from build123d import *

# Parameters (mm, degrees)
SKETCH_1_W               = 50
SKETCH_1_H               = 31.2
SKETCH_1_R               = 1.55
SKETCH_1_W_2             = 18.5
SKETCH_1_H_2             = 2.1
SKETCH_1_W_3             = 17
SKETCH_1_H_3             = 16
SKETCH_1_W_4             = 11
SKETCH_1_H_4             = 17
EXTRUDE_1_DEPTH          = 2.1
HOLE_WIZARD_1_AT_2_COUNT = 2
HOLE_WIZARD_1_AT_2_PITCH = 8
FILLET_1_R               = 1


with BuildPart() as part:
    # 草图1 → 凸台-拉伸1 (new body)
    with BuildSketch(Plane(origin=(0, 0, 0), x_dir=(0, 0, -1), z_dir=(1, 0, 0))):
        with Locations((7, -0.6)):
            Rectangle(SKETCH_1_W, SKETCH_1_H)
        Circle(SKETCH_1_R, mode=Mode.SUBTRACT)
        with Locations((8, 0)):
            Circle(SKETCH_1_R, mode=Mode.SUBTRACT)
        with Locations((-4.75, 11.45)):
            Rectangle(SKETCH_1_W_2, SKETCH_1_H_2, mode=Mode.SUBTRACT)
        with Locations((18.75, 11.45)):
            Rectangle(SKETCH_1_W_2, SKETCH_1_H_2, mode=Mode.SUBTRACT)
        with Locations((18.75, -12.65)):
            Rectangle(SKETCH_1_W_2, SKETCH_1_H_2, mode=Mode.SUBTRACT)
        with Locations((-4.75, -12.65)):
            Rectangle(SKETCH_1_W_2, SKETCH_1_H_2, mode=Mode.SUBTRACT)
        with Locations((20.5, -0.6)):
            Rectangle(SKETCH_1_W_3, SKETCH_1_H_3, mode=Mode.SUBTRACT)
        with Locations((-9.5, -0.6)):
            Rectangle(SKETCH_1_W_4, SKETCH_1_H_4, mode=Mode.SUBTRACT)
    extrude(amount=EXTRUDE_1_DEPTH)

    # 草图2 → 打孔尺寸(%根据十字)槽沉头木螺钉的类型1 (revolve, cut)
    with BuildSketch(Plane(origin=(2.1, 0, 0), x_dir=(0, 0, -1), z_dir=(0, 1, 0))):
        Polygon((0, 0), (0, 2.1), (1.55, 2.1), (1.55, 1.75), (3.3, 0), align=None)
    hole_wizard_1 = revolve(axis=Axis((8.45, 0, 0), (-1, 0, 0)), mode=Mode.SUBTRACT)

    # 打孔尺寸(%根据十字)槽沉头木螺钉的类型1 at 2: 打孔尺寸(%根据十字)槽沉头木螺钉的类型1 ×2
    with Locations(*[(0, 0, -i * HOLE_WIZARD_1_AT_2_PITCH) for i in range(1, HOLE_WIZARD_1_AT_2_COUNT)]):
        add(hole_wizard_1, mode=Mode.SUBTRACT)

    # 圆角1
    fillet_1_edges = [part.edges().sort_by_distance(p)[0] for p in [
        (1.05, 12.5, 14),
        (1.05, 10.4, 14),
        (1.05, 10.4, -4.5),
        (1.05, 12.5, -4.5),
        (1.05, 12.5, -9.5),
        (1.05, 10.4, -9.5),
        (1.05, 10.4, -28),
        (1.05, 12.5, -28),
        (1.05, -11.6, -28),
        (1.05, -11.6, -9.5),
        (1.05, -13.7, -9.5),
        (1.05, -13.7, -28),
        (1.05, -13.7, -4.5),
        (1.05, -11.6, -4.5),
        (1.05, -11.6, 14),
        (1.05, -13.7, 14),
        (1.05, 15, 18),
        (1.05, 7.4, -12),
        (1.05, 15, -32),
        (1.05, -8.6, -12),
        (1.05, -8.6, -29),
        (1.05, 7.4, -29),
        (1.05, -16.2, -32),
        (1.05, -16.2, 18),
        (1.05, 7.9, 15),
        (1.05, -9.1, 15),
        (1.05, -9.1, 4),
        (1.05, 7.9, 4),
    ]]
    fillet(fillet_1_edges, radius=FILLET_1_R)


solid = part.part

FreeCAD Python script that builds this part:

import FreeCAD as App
import Part
import Sketcher

V = App.Vector
Q = App.Units.Quantity


def edges_at(feature, points):
    """Names of the edges that pass closest to the given points."""
    edges = feature.Shape.Edges
    near = lambda p: min(range(len(edges)), key=lambda i: edges[i].distToShape(Part.Vertex(*p))[0])
    return sorted({f"Edge{near(p) + 1}" for p in points})


def add_polygon(sketch, points):
    """Adds a closed chain of lines whose ends are joined by coincident constraints."""
    first, n = sketch.GeometryCount, len(points)
    for a, b in zip(points, points[1:] + points[:1]):
        sketch.addGeometry(Part.LineSegment(App.Vector(*a, 0), App.Vector(*b, 0)), False)
    for i in range(n):
        sketch.addConstraint(Sketcher.Constraint("Coincident", first + i, 2, first + (i + 1) % n, 1))

doc = App.newDocument("Part")
params = doc.addObject("Spreadsheet::Sheet", "Params")
for row, (alias, value) in enumerate([
    ("sketch1_diameter", "3.1 mm"),
    ("sketch1_width", "17 mm"),
    ("sketch1_width2", "16 mm"),
    ("sketch1_height", "50 mm"),
    ("sketch1_height2", "11 mm"),
    ("pad1_length", "2.1 mm"),
    ("sketch2_width", "2.1 mm"),
    ("sketch2_height", "3.3 mm"),
    ("sketch2_width2", "0.35 mm"),
    ("groove_angle", "360 deg"),
    ("linearpattern_pitch", "8 mm"),
    ("fillet_radius", "1 mm"),
], start=1):
    params.set(f"A{row}", alias)
    params.set(f"B{row}", "=" + value)
    params.setAlias(f"B{row}", alias)

body = doc.addObject("PartDesign::Body", "Body")

# Sketch on YZ plane
sketch1 = body.newObject("Sketcher::SketchObject", "Sketch")
sketch1.AttachmentSupport = (doc.getObject("YZ_Plane"), [""])
sketch1.MapMode = "FlatFace"
add_polygon(sketch1, [(15, 18), (-16.2, 18), (-16.2, -32), (15, -32)])  # lines 0-3
add_polygon(sketch1, [(-13.7, -4.5), (-13.7, 14), (-11.6, 14), (-11.6, -4.5)])  # lines 4-7
add_polygon(sketch1, [(-13.7, -28), (-13.7, -9.5), (-11.6, -9.5), (-11.6, -28)])  # lines 8-11
add_polygon(sketch1, [(-9.1, 4), (-9.1, 15), (7.9, 15), (7.9, 4)])  # lines 12-15
sketch1.addGeometry(Part.Circle(V(0, 0, 0), V(0, 0, 1), 1.55), False)  # 16
add_polygon(sketch1, [(10.4, -4.5), (10.4, 14), (12.5, 14), (12.5, -4.5)])  # lines 17-20
sketch1.addGeometry(Part.Circle(V(0, -8, 0), V(0, 0, 1), 1.55), False)  # 21
add_polygon(sketch1, [(-8.6, -29), (-8.6, -12), (7.4, -12), (7.4, -29)])  # lines 22-25
add_polygon(sketch1, [(10.4, -28), (10.4, -9.5), (12.5, -9.5), (12.5, -28)])  # lines 26-29
sketch1.addConstraint(Sketcher.Constraint("Horizontal", 0))
sketch1.addConstraint(Sketcher.Constraint("Vertical", 1))
sketch1.addConstraint(Sketcher.Constraint("Horizontal", 2))
sketch1.addConstraint(Sketcher.Constraint("Vertical", 3))
sketch1.addConstraint(Sketcher.Constraint("Vertical", 4))
sketch1.addConstraint(Sketcher.Constraint("Horizontal", 5))
sketch1.addConstraint(Sketcher.Constraint("Vertical", 6))
sketch1.addConstraint(Sketcher.Constraint("Horizontal", 7))
sketch1.addConstraint(Sketcher.Constraint("Vertical", 8))
sketch1.addConstraint(Sketcher.Constraint("Horizontal", 9))
sketch1.addConstraint(Sketcher.Constraint("Vertical", 10))
sketch1.addConstraint(Sketcher.Constraint("Horizontal", 11))
sketch1.addConstraint(Sketcher.Constraint("Vertical", 12))
sketch1.addConstraint(Sketcher.Constraint("Horizontal", 13))
sketch1.addConstraint(Sketcher.Constraint("Vertical", 14))
sketch1.addConstraint(Sketcher.Constraint("Horizontal", 15))
sketch1.addConstraint(Sketcher.Constraint("Vertical", 17))
sketch1.addConstraint(Sketcher.Constraint("Horizontal", 18))
sketch1.addConstraint(Sketcher.Constraint("Vertical", 19))
sketch1.addConstraint(Sketcher.Constraint("Horizontal", 20))
sketch1.addConstraint(Sketcher.Constraint("Vertical", 22))
sketch1.addConstraint(Sketcher.Constraint("Horizontal", 23))
sketch1.addConstraint(Sketcher.Constraint("Vertical", 24))
sketch1.addConstraint(Sketcher.Constraint("Horizontal", 25))
sketch1.addConstraint(Sketcher.Constraint("Vertical", 26))
sketch1.addConstraint(Sketcher.Constraint("Horizontal", 27))
sketch1.addConstraint(Sketcher.Constraint("Vertical", 28))
sketch1.addConstraint(Sketcher.Constraint("Horizontal", 29))
sketch1.addConstraint(Sketcher.Constraint("Coincident", 16, 3, -1, 1))
sketch1.addConstraint(Sketcher.Constraint("Equal", 16, 21))
sketch1.addConstraint(Sketcher.Constraint("PointOnObject", 21, 3, -2))
sketch1.addConstraint(Sketcher.Constraint("Horizontal", 5, 2, 17, 2))
sketch1.addConstraint(Sketcher.Constraint("Horizontal", 7, 2, 19, 2))
sketch1.addConstraint(Sketcher.Constraint("Horizontal", 9, 2, 26, 2))
sketch1.addConstraint(Sketcher.Constraint("Horizontal", 11, 2, 28, 2))
sketch1.addConstraint(Sketcher.Constraint("Vertical", 7, 2, 8, 2))
sketch1.addConstraint(Sketcher.Constraint("Vertical", 6, 2, 9, 2))
sketch1.addConstraint(Sketcher.Constraint("Vertical", 20, 2, 26, 2))
sketch1.addConstraint(Sketcher.Constraint("Vertical", 19, 2, 27, 2))
sketch1.addConstraint(Sketcher.Constraint("Equal", 11, 18))
sketch1.addConstraint(Sketcher.Constraint("Equal", 6, 8))
sketch1.addConstraint(Sketcher.Constraint("Equal", 15, 22))
sketch1.addConstraint(Sketcher.Constraint("Diameter", 16, Q("3.1 mm")))
sketch1.addConstraint(Sketcher.Constraint("DistanceX", 13, 1, 13, 2, Q("17 mm")))
sketch1.addConstraint(Sketcher.Constraint("DistanceX", 23, 1, 23, 2, Q("16 mm")))
sketch1.addConstraint(Sketcher.Constraint("DistanceY", 1, 2, 1, 1, Q("50 mm")))
sketch1.addConstraint(Sketcher.Constraint("DistanceY", 12, 1, 12, 2, Q("11 mm")))
sketch1.addConstraint(Sketcher.Constraint("DistanceX", 0, 2, 0, 1, Q("31.2 mm")))
sketch1.addConstraint(Sketcher.Constraint("DistanceX", 5, 1, 5, 2, Q("2.1 mm")))
sketch1.addConstraint(Sketcher.Constraint("DistanceY", 4, 1, 4, 2, Q("18.5 mm")))
sketch1.addConstraint(Sketcher.Constraint("DistanceY", 21, 3, -1, 1, Q("8 mm")))
sketch1.addConstraint(Sketcher.Constraint("DistanceY", -1, 1, 0, 2, Q("18 mm")))
sketch1.addConstraint(Sketcher.Constraint("DistanceX", -1, 1, 2, 2, Q("15 mm")))
sketch1.addConstraint(Sketcher.Constraint("DistanceY", -1, 1, 4, 2, Q("14 mm")))
sketch1.addConstraint(Sketcher.Constraint("DistanceY", 10, 2, -1, 1, Q("28 mm")))
sketch1.addConstraint(Sketcher.Constraint("DistanceY", -1, 1, 12, 2, Q("15 mm")))
sketch1.addConstraint(Sketcher.Constraint("DistanceY", 22, 2, -1, 1, Q("12 mm")))
sketch1.addConstraint(Sketcher.Constraint("DistanceX", 9, 2, 22, 2, Q("3 mm")))
sketch1.addConstraint(Sketcher.Constraint("DistanceX", 23, 2, 20, 2, Q("3 mm")))
sketch1.addConstraint(Sketcher.Constraint("DistanceX", 4, 2, -1, 1, Q("13.7 mm")))
sketch1.addConstraint(Sketcher.Constraint("DistanceX", 12, 2, -1, 1, Q("9.1 mm")))
sketch1.setExpression("Constraints[70]", "Params.sketch1_diameter")
sketch1.setExpression("Constraints[71]", "Params.sketch1_width")
sketch1.setExpression("Constraints[72]", "Params.sketch1_width2")
sketch1.setExpression("Constraints[73]", "Params.sketch1_height")
sketch1.setExpression("Constraints[74]", "Params.sketch1_height2")
pad1 = body.newObject("PartDesign::Pad", "Pad")
pad1.Profile = sketch1
pad1.setExpression("Length", "Params.pad1_length")

# Sketch on XZ plane
sketch2 = body.newObject("Sketcher::SketchObject", "Sketch001")
sketch2.AttachmentSupport = (doc.getObject("XZ_Plane"), [""])
sketch2.MapMode = "FlatFace"
add_polygon(sketch2, [(0, 0), (2.1, 0), (2.1, -3.3), (0.35, -1.55), (0, -1.55)])  # lines 0-4
sketch2.addConstraint(Sketcher.Constraint("Horizontal", 0))
sketch2.addConstraint(Sketcher.Constraint("Vertical", 1))
sketch2.addConstraint(Sketcher.Constraint("Horizontal", 3))
sketch2.addConstraint(Sketcher.Constraint("Vertical", 4))
sketch2.addConstraint(Sketcher.Constraint("Coincident", 4, 2, -1, 1))
sketch2.addConstraint(Sketcher.Constraint("Angle", 2, Q("135 deg")))
sketch2.addConstraint(Sketcher.Constraint("DistanceX", 0, 1, 0, 2, Q("2.1 mm")))
sketch2.addConstraint(Sketcher.Constraint("DistanceY", 1, 2, 1, 1, Q("3.3 mm")))
sketch2.addConstraint(Sketcher.Constraint("DistanceX", 3, 2, 3, 1, Q("0.35 mm")))
sketch2.setExpression("Constraints[11]", "Params.sketch2_width")
sketch2.setExpression("Constraints[12]", "Params.sketch2_height")
sketch2.setExpression("Constraints[13]", "Params.sketch2_width2")
groove = body.newObject("PartDesign::Groove", "Groove")
groove.Profile = sketch2
groove.ReferenceAxis = (sketch2, ["H_Axis"])
groove.setExpression("Angle", "Params.groove_angle")
doc.recompute()

linearpattern = body.newObject("PartDesign::LinearPattern", "LinearPattern")
linearpattern.Originals = [groove]
linearpattern.Direction = (doc.getObject("Z_Axis"), [""])
linearpattern.Mode = "offset"
linearpattern.setExpression("Offset", "Params.linearpattern_pitch")
linearpattern.Occurrences = 2
linearpattern.Reversed = True
body.Tip = linearpattern
doc.recompute()

fillet = body.newObject("PartDesign::Fillet", "Fillet")
fillet.Base = (linearpattern, edges_at(linearpattern, [
    (1.05, 12.5, 14),
    (1.05, 10.4, 14),
    (1.05, 10.4, -4.5),
    (1.05, 12.5, -4.5),
    (1.05, 12.5, -9.5),
    (1.05, 10.4, -9.5),
    (1.05, 10.4, -28),
    (1.05, 12.5, -28),
    (1.05, -11.6, -28),
    (1.05, -11.6, -9.5),
    (1.05, -13.7, -9.5),
    (1.05, -13.7, -28),
    (1.05, -13.7, -4.5),
    (1.05, -11.6, -4.5),
    (1.05, -11.6, 14),
    (1.05, -13.7, 14),
    (1.05, 15, 18),
    (1.05, 7.4, -12),
    (1.05, 15, -32),
    (1.05, -8.6, -12),
    (1.05, -8.6, -29),
    (1.05, 7.4, -29),
    (1.05, -16.2, -32),
    (1.05, -16.2, 18),
    (1.05, 7.9, 15),
    (1.05, -9.1, 15),
    (1.05, -9.1, 4),
    (1.05, 7.9, 4),
]))
fillet.setExpression("Radius", "Params.fillet_radius")

doc.recompute()
